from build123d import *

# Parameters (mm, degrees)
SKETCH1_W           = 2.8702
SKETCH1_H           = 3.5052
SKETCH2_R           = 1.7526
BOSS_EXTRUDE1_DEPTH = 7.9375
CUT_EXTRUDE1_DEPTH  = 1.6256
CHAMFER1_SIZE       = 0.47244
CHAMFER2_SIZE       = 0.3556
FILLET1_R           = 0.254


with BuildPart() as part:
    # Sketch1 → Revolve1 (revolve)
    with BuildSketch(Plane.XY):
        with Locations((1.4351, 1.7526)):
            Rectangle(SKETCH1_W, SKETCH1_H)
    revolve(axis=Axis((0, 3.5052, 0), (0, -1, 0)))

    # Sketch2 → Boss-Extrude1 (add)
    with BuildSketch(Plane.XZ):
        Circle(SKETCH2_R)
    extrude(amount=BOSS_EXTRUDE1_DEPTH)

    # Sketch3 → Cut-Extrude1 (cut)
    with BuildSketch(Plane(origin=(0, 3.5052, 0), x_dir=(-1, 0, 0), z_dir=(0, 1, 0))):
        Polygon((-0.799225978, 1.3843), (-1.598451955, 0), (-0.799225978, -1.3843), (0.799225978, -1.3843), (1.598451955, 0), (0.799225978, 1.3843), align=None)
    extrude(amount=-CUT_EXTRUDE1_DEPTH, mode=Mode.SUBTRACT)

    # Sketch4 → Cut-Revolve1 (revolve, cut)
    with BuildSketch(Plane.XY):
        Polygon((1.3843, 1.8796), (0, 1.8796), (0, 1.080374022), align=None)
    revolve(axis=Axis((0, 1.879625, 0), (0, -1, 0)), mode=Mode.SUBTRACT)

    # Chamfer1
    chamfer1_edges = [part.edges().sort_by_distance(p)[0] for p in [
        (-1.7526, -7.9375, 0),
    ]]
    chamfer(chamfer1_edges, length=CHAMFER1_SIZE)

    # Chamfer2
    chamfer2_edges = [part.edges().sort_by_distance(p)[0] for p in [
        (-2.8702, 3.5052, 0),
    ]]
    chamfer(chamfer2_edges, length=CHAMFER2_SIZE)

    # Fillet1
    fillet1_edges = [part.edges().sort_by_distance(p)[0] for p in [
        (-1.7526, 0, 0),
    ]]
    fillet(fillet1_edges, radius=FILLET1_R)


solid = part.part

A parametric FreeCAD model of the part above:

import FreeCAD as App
import Part
import Sketcher
from FreeCAD import Vector
Q = App.Units.Quantity


def edges_at(feature, points):
    """Names of the edges that pass closest to the given points."""
    edges = feature.Shape.Edges
    near = lambda p: min(range(len(edges)), key=lambda i: edges[i].distToShape(Part.Vertex(*p))[0])
    return sorted({f"Edge{near(p) + 1}" for p in points})


def add_polygon(sketch, points):
    """Adds a closed chain of lines whose ends are joined by coincident constraints."""
    first, n = sketch.GeometryCount, len(points)
    for a, b in zip(points, points[1:] + points[:1]):
        sketch.addGeometry(Part.LineSegment(App.Vector(*a, 0), App.Vector(*b, 0)), False)
    for i in range(n):
        sketch.addConstraint(Sketcher.Constraint("Coincident", first + i, 2, first + (i + 1) % n, 1))

doc = App.newDocument("Part")
params = doc.addObject("Spreadsheet::Sheet", "Params")
for row, (alias, value) in enumerate([
    ("sketch1_width", "0.113 in"),
    ("sketch1_height", "0.138 in"),
    ("revolution_angle", "360 deg"),
    ("sketch2_diameter", "0.138 in"),
    ("pad1_length", "0.3125 in"),
    ("pocket1_length", "0.064 in"),
    ("groove_angle", "360 deg"),
    ("chamfer_size", "0.0186 in"),
    ("chamfer2_size", "0.014 in"),
    ("fillet_radius", "0.01 in"),
], start=1):
    params.set(f"A{row}", alias)
    params.set(f"B{row}", "=" + value)
    params.setAlias(f"B{row}", alias)

body = doc.addObject("PartDesign::Body", "Body")

# Sketch on XY plane
sketch1 = body.newObject("Sketcher::SketchObject", "Sketch")
sketch1.AttachmentSupport = (doc.getObject("XY_Plane"), [""])
sketch1.MapMode = "FlatFace"
add_polygon(sketch1, [(0, 3.5), (0, 0), (2.9, 0), (2.9, 3.5)])  # lines 0-3
sketch1.addConstraint([
    Sketcher.Constraint("Vertical", 0),
    Sketcher.Constraint("Horizontal", 1),
    Sketcher.Constraint("Vertical", 2),
    Sketcher.Constraint("Horizontal", 3),
    Sketcher.Constraint("Coincident", 0, 2, -1, 1),
    Sketcher.Constraint("DistanceX", 1, 1, 1, 2, Q("0.113 in")),
    Sketcher.Constraint("DistanceY", 0, 2, 0, 1, Q("0.138 in")),
])
sketch1.setExpression("Constraints[9]", "Params.sketch1_width")
sketch1.setExpression("Constraints[10]", "Params.sketch1_height")
revolution = body.newObject("PartDesign::Revolution", "Revolution")
revolution.Profile = sketch1
revolution.ReferenceAxis = (sketch1, ["V_Axis"])
revolution.setExpression("Angle", "Params.revolution_angle")

# Sketch on XZ plane
sketch2 = body.newObject("Sketcher::SketchObject", "Sketch001")
sketch2.AttachmentSupport = (doc.getObject("XZ_Plane"), [""])
sketch2.MapMode = "FlatFace"
sketch2.addGeometry(Part.Circle(Vector(0, 0, 0), Vector(0, 0, 1), 1.8), False)
sketch2.addConstraint([
    Sketcher.Constraint("Coincident", 0, 3, -1, 1),
    Sketcher.Constraint("Diameter", 0, Q("0.138 in")),
])
sketch2.setExpression("Constraints[1]", "Params.sketch2_diameter")
pad1 = body.newObject("PartDesign::Pad", "Pad")
pad1.Profile = sketch2
pad1.setExpression("Length", "Params.pad1_length")

# Sketch on XZ plane
sketch3 = body.newObject("Sketcher::SketchObject", "Sketch002")
sketch3.AttachmentSupport = (doc.getObject("XZ_Plane"), [""])
sketch3.MapMode = "FlatFace"
sketch3.AttachmentOffset = App.Placement(Vector(0, 0, -0.138 * 25.4), App.Rotation())
add_polygon(sketch3, [(0.8, 1.4), (1.6, 0), (0.8, -1.4), (-0.8, -1.4), (-1.6, 0), (-0.8, 1.4)])  # lines 0-5
sketch3.addConstraint([
    Sketcher.Constraint("Horizontal", 2),
    Sketcher.Constraint("Horizontal", 5),
    Sketcher.Constraint("Symmetric", 0, 2, 3, 2, -1, 1),
    Sketcher.Constraint("Symmetric", 1, 2, 4, 2, -1, 1),
    Sketcher.Constraint("PointOnObject", 0, 2, -1),
    Sketcher.Constraint("Parallel", 0, 3),
    Sketcher.Constraint("Vertical", 2, 2, 4, 2),
    Sketcher.Constraint("Angle", 0, Q("-60 deg")),
    Sketcher.Constraint("DistanceY", 2, 2, 4, 2, Q("0.109 in")),
    Sketcher.Constraint("DistanceX", 2, 2, 2, 1, Q("1.598452 mm")),
])
pocket1 = body.newObject("PartDesign::Pocket", "Pocket")
pocket1.Profile = sketch3
pocket1.setExpression("Length", "Params.pocket1_length")
pocket1.Reversed = True

# Sketch on XY plane
sketch4 = body.newObject("Sketcher::SketchObject", "Sketch003")
sketch4.AttachmentSupport = (doc.getObject("XY_Plane"), [""])
sketch4.MapMode = "FlatFace"
add_polygon(sketch4, [(1.4, 1.9), (0, 1.9), (0, 1.1)])  # lines 0-2
sketch4.addConstraint([
    Sketcher.Constraint("Horizontal", 0),
    Sketcher.Constraint("Vertical", 1),
    Sketcher.Constraint("PointOnObject", 0, 2, -2),
    Sketcher.Constraint("Angle", 2, Q("30 deg")),
    Sketcher.Constraint("DistanceX", 0, 2, 0, 1, Q("0.0545 in")),
    Sketcher.Constraint("DistanceY", -1, 1, 0, 2, Q("0.074 in")),
])
groove = body.newObject("PartDesign::Groove", "Groove")
groove.Profile = sketch4
groove.ReferenceAxis = (sketch4, ["V_Axis"])
groove.setExpression("Angle", "Params.groove_angle")
doc.recompute()

chamfer = body.newObject("PartDesign::Chamfer", "Chamfer")
chamfer.Base = (groove, edges_at(groove, [(-1.753, -7.938, 0)]))
chamfer.setExpression("Size", "Params.chamfer_size")
doc.recompute()

chamfer2 = body.newObject("PartDesign::Chamfer", "Chamfer001")
chamfer2.Base = (chamfer, edges_at(chamfer, [(-2.87, 3.505, 0)]))
chamfer2.setExpression("Size", "Params.chamfer2_size")
doc.recompute()

fillet = body.newObject("PartDesign::Fillet", "Fillet")
fillet.Base = (chamfer2, edges_at(chamfer2, [(-1.753, 0, 0)]))
fillet.setExpression("Radius", "Params.fillet_radius")

doc.recompute()
